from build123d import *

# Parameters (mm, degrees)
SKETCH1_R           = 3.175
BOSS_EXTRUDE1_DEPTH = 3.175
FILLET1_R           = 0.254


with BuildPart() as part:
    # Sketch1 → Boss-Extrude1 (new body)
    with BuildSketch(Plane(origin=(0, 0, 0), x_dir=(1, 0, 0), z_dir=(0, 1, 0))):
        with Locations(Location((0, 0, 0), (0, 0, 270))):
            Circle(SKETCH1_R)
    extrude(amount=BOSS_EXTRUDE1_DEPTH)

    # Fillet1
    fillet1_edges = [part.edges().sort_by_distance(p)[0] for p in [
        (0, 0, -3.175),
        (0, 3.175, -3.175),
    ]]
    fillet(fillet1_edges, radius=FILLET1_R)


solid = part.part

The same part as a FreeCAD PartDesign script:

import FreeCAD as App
import Part
import Sketcher
Q = App.Units.Quantity


def edges_at(feature, points):
    """Names of the edges that pass closest to the given points."""
    edges = feature.Shape.Edges
    near = lambda p: min(range(len(edges)), key=lambda i: edges[i].distToShape(Part.Vertex(*p))[0])
    return sorted({f"Edge{near(p) + 1}" for p in points})

doc = App.newDocument("Part")
body = doc.addObject("PartDesign::Body", "Body")

sketch1 = doc.addObject("Sketcher::SketchObject", "Sketch")
body.addObject(sketch1)
sketch1.AttachmentSupport = (doc.XZ_Plane, [""])
sketch1.MapMode = "FlatFace"
sketch1.addGeometry(Part.Circle(App.Vector(0, 0, 0), App.Vector(0, 0, 1), 3.2), False)
sketch1.addConstraint([
    Sketcher.Constraint("Coincident", 0, 3, -1, 1),
    Sketcher.Constraint("Diameter", 0, Q("0.25 in")),
])
pad1 = doc.addObject("PartDesign::Pad", "Pad")
body.addObject(pad1)
pad1.Profile = sketch1
pad1.Length = Q("0.125 in")
pad1.Reversed = True
doc.recompute()

fillet = doc.addObject("PartDesign::Fillet", "Fillet")
body.addObject(fillet)
fillet.Base = (pad1, edges_at(pad1, [(0, 0, -3.175), (0, 3.175, -3.175)]))
fillet.Radius = Q("0.01 in")

doc.recompute()
